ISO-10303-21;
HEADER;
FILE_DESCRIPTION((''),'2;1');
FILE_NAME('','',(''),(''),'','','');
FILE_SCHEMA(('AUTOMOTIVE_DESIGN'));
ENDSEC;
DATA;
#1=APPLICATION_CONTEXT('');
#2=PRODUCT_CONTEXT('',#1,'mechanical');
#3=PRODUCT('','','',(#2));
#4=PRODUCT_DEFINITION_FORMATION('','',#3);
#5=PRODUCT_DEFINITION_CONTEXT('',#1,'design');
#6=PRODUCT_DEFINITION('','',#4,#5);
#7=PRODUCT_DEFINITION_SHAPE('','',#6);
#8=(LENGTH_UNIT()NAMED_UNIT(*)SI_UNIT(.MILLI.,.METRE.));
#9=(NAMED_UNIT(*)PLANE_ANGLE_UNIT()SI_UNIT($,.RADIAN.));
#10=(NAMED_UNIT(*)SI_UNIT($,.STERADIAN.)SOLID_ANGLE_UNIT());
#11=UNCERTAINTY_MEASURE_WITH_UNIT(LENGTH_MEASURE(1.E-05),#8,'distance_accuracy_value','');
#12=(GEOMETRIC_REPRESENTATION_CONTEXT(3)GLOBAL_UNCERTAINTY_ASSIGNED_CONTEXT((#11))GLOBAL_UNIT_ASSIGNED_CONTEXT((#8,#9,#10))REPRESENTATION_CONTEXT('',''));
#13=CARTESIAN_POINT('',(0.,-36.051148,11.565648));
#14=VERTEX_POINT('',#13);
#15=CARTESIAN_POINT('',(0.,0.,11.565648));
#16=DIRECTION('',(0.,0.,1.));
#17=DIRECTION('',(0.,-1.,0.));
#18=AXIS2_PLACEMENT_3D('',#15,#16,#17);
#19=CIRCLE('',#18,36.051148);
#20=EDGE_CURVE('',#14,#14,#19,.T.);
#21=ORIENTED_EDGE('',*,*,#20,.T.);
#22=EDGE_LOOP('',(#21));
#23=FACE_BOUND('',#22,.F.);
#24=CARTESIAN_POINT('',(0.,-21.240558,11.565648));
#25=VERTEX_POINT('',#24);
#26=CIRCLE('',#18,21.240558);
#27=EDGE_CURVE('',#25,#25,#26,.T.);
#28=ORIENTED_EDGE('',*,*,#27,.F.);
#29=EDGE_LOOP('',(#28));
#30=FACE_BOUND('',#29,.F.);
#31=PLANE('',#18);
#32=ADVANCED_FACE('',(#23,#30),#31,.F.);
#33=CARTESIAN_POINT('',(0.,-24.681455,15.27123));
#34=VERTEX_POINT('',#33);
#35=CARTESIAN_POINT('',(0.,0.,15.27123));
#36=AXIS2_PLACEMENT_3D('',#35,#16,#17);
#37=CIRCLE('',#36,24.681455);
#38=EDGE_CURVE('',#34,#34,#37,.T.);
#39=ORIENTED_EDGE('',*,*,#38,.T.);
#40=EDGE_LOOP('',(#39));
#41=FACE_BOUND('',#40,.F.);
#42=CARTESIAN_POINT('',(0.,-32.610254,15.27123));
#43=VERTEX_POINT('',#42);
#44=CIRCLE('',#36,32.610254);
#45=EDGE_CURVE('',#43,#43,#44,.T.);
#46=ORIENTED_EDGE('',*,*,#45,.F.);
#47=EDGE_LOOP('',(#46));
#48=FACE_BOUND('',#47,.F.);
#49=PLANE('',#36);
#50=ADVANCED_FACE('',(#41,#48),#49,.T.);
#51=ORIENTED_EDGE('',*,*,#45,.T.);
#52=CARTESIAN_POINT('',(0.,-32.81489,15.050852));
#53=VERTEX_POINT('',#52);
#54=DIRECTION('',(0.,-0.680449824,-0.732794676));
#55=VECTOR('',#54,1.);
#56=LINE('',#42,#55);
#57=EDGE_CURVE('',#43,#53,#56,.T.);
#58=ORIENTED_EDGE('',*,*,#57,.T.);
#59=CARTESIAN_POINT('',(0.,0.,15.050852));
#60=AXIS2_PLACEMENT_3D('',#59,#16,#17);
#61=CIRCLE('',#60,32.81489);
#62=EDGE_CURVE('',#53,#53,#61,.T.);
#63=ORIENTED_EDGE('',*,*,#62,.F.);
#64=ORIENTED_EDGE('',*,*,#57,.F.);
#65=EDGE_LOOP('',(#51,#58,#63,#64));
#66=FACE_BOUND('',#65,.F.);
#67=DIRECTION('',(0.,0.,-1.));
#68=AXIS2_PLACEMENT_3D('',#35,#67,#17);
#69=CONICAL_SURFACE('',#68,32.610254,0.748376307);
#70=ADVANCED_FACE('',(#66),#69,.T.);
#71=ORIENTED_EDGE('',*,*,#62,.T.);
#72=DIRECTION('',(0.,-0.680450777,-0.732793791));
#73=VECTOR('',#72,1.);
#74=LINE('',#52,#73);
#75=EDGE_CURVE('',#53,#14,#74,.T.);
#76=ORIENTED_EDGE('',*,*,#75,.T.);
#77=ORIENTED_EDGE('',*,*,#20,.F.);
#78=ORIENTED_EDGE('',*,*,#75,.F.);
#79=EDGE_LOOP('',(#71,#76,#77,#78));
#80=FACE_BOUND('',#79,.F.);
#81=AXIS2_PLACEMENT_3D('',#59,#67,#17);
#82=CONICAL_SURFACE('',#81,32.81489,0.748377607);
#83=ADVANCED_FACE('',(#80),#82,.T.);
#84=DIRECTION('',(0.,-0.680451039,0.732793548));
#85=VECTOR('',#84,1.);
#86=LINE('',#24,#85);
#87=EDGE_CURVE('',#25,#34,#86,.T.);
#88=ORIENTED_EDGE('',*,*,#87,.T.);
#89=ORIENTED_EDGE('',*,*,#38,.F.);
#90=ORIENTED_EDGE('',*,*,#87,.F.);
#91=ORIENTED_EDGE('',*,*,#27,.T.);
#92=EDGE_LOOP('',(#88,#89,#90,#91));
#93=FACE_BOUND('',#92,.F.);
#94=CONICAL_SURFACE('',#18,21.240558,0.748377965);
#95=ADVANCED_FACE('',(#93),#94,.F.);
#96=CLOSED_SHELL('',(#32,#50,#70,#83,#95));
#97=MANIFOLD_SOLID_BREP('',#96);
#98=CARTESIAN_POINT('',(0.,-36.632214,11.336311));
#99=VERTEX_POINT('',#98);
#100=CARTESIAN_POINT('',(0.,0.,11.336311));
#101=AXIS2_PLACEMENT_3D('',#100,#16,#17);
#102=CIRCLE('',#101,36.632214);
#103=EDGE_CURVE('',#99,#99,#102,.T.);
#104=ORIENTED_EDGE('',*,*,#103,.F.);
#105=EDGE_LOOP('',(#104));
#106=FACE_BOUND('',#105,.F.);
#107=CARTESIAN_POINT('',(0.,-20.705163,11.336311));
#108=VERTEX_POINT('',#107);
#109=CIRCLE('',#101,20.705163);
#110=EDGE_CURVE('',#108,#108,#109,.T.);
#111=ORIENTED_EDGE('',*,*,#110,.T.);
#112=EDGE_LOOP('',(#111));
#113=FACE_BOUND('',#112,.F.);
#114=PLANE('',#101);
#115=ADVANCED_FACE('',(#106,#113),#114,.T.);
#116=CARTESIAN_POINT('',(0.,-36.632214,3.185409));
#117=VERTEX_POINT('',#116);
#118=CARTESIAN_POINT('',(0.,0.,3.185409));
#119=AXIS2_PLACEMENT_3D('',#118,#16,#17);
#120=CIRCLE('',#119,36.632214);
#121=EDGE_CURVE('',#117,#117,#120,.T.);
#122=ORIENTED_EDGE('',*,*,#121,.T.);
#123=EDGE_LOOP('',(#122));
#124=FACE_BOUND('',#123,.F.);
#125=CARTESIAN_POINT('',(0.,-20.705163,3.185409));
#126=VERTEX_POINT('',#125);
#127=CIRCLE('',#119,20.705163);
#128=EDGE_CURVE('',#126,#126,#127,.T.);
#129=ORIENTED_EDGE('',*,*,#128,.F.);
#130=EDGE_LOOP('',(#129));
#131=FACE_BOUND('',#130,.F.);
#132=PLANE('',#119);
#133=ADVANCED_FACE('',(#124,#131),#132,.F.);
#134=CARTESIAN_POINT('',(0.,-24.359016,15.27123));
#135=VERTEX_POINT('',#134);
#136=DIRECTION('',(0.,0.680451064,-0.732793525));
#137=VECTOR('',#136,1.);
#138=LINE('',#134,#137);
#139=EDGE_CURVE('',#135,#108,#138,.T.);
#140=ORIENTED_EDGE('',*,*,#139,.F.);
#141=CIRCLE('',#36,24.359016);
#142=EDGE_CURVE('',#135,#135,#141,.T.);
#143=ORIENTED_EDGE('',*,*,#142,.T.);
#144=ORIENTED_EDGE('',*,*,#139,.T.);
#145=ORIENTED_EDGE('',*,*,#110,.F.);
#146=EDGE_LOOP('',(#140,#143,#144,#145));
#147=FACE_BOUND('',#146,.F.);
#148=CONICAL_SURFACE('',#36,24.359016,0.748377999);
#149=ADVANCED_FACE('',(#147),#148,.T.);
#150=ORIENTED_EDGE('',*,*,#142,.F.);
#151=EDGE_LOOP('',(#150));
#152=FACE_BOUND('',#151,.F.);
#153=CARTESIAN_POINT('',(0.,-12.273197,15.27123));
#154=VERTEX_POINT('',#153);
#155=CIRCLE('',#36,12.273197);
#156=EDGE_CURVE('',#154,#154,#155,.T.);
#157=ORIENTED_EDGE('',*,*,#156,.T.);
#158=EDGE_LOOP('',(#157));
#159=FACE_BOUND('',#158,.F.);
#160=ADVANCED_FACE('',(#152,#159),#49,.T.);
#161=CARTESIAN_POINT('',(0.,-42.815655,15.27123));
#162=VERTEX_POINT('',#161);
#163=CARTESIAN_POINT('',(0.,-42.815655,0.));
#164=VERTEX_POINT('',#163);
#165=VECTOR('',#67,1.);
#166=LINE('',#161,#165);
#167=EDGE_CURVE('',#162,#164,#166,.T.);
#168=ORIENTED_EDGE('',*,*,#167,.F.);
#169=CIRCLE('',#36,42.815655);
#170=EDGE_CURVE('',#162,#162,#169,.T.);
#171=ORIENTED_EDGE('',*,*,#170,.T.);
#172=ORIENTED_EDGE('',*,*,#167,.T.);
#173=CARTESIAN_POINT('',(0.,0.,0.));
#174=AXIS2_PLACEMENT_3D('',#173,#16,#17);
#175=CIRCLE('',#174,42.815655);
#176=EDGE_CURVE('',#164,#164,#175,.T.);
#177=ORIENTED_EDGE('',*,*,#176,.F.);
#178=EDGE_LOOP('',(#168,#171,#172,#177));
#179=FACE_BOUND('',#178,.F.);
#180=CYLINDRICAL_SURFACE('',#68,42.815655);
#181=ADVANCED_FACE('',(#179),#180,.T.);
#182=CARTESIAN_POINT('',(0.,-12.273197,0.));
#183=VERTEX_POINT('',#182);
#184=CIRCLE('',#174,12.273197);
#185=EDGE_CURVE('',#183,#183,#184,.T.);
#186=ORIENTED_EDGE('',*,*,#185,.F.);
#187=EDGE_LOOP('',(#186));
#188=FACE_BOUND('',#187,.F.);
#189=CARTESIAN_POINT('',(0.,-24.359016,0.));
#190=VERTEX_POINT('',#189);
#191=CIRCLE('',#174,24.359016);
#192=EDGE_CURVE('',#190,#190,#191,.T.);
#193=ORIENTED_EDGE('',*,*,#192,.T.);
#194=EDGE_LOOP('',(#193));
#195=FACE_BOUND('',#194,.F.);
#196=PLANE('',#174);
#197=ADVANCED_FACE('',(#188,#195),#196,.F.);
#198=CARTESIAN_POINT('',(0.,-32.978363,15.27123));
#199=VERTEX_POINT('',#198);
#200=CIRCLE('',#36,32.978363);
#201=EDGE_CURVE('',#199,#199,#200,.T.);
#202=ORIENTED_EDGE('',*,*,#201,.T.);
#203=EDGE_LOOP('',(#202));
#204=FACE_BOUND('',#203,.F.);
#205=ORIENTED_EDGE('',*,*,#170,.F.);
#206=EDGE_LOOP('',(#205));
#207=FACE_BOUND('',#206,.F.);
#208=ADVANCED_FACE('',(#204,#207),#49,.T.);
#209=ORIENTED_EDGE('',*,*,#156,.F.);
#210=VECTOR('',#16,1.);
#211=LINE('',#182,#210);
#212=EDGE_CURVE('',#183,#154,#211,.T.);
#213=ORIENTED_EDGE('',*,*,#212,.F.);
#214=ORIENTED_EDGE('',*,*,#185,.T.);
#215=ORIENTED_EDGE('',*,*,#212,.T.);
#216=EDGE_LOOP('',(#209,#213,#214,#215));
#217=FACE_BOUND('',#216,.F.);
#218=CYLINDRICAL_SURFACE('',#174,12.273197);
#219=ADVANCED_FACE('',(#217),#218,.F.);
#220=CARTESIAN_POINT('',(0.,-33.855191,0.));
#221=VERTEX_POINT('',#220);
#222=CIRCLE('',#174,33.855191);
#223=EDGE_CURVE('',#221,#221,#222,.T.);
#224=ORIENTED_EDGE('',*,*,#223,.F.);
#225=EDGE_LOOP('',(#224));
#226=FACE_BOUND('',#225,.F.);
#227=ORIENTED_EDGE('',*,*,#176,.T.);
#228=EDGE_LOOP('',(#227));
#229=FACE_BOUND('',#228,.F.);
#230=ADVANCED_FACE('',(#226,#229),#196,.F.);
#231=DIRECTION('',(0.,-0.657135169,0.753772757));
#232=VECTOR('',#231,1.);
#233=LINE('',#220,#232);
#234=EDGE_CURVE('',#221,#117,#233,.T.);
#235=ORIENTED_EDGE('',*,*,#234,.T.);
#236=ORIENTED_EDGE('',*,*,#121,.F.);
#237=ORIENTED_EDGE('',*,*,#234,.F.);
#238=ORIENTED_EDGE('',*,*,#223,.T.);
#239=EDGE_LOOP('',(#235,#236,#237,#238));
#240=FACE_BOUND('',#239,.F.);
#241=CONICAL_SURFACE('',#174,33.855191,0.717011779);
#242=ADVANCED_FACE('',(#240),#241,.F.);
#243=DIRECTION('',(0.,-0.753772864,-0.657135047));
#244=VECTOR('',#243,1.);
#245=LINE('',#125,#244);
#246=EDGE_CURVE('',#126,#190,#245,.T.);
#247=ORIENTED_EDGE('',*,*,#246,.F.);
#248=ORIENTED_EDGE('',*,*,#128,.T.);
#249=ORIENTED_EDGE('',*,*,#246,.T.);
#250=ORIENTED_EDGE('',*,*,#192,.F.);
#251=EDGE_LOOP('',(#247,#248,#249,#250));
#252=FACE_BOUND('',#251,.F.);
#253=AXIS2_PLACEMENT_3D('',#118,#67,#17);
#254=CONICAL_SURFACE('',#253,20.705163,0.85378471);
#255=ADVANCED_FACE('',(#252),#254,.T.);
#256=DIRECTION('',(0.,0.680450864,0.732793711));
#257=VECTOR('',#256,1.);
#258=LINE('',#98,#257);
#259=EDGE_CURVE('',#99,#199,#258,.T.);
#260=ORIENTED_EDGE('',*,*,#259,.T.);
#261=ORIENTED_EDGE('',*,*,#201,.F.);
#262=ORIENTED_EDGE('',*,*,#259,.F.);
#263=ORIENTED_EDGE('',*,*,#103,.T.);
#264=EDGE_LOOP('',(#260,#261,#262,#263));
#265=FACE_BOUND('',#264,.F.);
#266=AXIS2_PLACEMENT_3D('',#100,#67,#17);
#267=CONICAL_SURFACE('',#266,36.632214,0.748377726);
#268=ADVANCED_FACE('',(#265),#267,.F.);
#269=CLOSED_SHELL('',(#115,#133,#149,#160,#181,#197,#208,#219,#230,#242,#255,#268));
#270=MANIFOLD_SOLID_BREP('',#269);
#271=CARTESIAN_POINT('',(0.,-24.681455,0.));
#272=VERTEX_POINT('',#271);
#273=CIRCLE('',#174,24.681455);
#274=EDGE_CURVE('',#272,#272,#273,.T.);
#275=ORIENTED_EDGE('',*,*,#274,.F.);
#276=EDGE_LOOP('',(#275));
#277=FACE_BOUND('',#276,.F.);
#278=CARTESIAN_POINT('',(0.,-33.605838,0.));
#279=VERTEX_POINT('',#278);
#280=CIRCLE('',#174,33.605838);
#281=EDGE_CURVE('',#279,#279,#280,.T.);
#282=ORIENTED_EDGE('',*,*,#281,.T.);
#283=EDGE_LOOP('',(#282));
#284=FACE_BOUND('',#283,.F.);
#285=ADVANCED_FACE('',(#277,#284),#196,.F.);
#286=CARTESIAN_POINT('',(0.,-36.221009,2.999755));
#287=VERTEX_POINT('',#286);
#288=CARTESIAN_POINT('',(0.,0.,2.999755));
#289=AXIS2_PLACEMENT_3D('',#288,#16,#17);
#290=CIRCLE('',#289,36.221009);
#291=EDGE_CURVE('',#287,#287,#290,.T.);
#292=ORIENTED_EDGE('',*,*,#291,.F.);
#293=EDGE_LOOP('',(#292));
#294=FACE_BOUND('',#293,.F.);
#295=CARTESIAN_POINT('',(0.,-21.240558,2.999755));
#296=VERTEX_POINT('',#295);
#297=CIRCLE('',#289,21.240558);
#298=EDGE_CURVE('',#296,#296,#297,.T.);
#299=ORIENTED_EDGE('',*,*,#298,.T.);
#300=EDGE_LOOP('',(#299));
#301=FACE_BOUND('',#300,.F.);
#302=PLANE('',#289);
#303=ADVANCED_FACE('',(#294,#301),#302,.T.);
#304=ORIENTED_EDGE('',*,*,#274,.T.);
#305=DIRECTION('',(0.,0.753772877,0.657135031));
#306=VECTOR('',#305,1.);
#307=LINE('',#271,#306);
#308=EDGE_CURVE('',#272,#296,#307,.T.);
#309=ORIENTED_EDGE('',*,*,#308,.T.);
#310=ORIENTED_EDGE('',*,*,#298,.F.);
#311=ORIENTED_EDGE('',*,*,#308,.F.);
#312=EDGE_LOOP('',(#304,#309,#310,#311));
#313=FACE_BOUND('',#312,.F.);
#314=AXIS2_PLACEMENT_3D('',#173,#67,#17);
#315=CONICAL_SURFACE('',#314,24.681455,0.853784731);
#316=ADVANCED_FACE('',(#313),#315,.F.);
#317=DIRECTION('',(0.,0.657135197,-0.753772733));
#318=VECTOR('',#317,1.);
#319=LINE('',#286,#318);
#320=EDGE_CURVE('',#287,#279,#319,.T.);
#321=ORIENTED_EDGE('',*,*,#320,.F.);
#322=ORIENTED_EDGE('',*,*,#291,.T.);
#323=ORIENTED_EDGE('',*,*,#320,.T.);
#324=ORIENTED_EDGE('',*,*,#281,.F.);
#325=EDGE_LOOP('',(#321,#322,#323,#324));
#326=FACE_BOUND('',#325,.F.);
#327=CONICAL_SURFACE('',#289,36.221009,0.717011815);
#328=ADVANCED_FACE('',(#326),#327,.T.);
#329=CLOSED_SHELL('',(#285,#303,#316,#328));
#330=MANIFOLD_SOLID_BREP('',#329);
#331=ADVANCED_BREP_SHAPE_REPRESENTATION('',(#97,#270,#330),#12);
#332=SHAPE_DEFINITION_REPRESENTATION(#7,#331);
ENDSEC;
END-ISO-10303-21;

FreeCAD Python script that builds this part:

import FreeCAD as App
import Part
import Sketcher
Q = App.Units.Quantity

doc = App.newDocument("Part")
body = doc.addObject("PartDesign::Body", "Body")
body.AllowCompound = True

# Sketch on YZ plane
sketch1 = body.newObject("Sketcher::SketchObject", "Sketch")
sketch1.AttachmentSupport = (doc.getObject("YZ_Plane"), [""])
sketch1.MapMode = "FlatFace"
sketch1.addGeometry([
    Part.LineSegment(App.Vector(-42.82, 15.27, 0), App.Vector(-42.82, 0, 0)),  # 0
    Part.LineSegment(App.Vector(-42.82, 0, 0), App.Vector(-33.86, 0, 0)),  # 1
    Part.LineSegment(App.Vector(-33.86, 0, 0), App.Vector(-36.63, 3.19, 0)),  # 2
    Part.LineSegment(App.Vector(-36.63, 3.19, 0), App.Vector(-20.71, 3.19, 0)),  # 3
    Part.LineSegment(App.Vector(-20.71, 3.19, 0), App.Vector(-24.36, 0, 0)),  # 4
    Part.LineSegment(App.Vector(-24.36, 0, 0), App.Vector(-12.27, 0, 0)),  # 5
    Part.LineSegment(App.Vector(-12.27, 0, 0), App.Vector(-12.27, 15.27, 0)),  # 6
    Part.LineSegment(App.Vector(-12.27, 15.27, 0), App.Vector(-24.36, 15.27, 0)),  # 7
    Part.LineSegment(App.Vector(-24.36, 15.27, 0), App.Vector(-20.71, 11.34, 0)),  # 8
    Part.LineSegment(App.Vector(-20.71, 11.34, 0), App.Vector(-36.63, 11.34, 0)),  # 9
    Part.LineSegment(App.Vector(-36.63, 11.34, 0), App.Vector(-32.98, 15.27, 0)),  # 10
    Part.LineSegment(App.Vector(-32.98, 15.27, 0), App.Vector(-42.82, 15.27, 0)),  # 11
    Part.LineSegment(App.Vector(-32.61, 15.27, 0), App.Vector(-32.81, 15.05, 0)),  # 12
    Part.LineSegment(App.Vector(-32.81, 15.05, 0), App.Vector(-36.05, 11.57, 0)),  # 13
    Part.LineSegment(App.Vector(-36.05, 11.57, 0), App.Vector(-21.24, 11.57, 0)),  # 14
    Part.LineSegment(App.Vector(-21.24, 11.57, 0), App.Vector(-24.68, 15.27, 0)),  # 15
    Part.LineSegment(App.Vector(-24.68, 15.27, 0), App.Vector(-32.61, 15.27, 0)),  # 16
    Part.LineSegment(App.Vector(-33.61, 0, 0), App.Vector(-24.68, 0, 0)),  # 17
    Part.LineSegment(App.Vector(-24.68, 0, 0), App.Vector(-21.24, 3, 0)),  # 18
    Part.LineSegment(App.Vector(-21.24, 3, 0), App.Vector(-36.22, 3, 0)),  # 19
    Part.LineSegment(App.Vector(-36.22, 3, 0), App.Vector(-33.61, 0, 0)),  # 20
], False)
sketch1.addConstraint([
    Sketcher.Constraint("Coincident", 0, 2, 1, 1),
    Sketcher.Constraint("Coincident", 1, 2, 2, 1),
    Sketcher.Constraint("Coincident", 2, 2, 3, 1),
    Sketcher.Constraint("Coincident", 3, 2, 4, 1),
    Sketcher.Constraint("Coincident", 4, 2, 5, 1),
    Sketcher.Constraint("Coincident", 5, 2, 6, 1),
    Sketcher.Constraint("Coincident", 6, 2, 7, 1),
    Sketcher.Constraint("Coincident", 7, 2, 8, 1),
    Sketcher.Constraint("Coincident", 8, 2, 9, 1),
    Sketcher.Constraint("Coincident", 9, 2, 10, 1),
    Sketcher.Constraint("Coincident", 10, 2, 11, 1),
    Sketcher.Constraint("Coincident", 11, 2, 0, 1),
    Sketcher.Constraint("Coincident", 12, 2, 13, 1),
    Sketcher.Constraint("Coincident", 13, 2, 14, 1),
    Sketcher.Constraint("Coincident", 14, 2, 15, 1),
    Sketcher.Constraint("Coincident", 15, 2, 16, 1),
    Sketcher.Constraint("Coincident", 16, 2, 12, 1),
    Sketcher.Constraint("Coincident", 17, 2, 18, 1),
    Sketcher.Constraint("Coincident", 18, 2, 19, 1),
    Sketcher.Constraint("Coincident", 19, 2, 20, 1),
    Sketcher.Constraint("Coincident", 20, 2, 17, 1),
    Sketcher.Constraint("Vertical", 0),
    Sketcher.Constraint("Horizontal", 1),
    Sketcher.Constraint("Horizontal", 3),
    Sketcher.Constraint("Horizontal", 5),
    Sketcher.Constraint("Vertical", 6),
    Sketcher.Constraint("Horizontal", 7),
    Sketcher.Constraint("Horizontal", 9),
    Sketcher.Constraint("Horizontal", 11),
    Sketcher.Constraint("Horizontal", 14),
    Sketcher.Constraint("Horizontal", 16),
    Sketcher.Constraint("Horizontal", 17),
    Sketcher.Constraint("Horizontal", 19),
    Sketcher.Constraint("PointOnObject", 0, 2, -1),
    Sketcher.Constraint("PointOnObject", 4, 2, -1),
    Sketcher.Constraint("PointOnObject", 17, 2, -1),
    Sketcher.Constraint("Perpendicular", 2, 4),
    Sketcher.Constraint("Parallel", 10, 12),
    Sketcher.Constraint("Parallel", 12, 13),
    Sketcher.Constraint("Parallel", 8, 15),
    Sketcher.Constraint("Parallel", 4, 18),
    Sketcher.Constraint("Perpendicular", 18, 20),
    Sketcher.Constraint("Horizontal", 7, 2, 10, 2),
    Sketcher.Constraint("Horizontal", 11, 2, 15, 2),
    Sketcher.Constraint("Vertical", 4, 2, 7, 2),
    Sketcher.Constraint("Vertical", 3, 2, 8, 2),
    Sketcher.Constraint("Vertical", 2, 2, 9, 2),
    Sketcher.Constraint("Vertical", 15, 2, 17, 2),
    Sketcher.Constraint("Vertical", 14, 2, 18, 2),
    Sketcher.Constraint("Equal", 8, 10),
    Sketcher.Constraint("DistanceX", 16, 2, 16, 1, Q("7.928799 mm")),
    Sketcher.Constraint("Distance", 18, Q("4.564899 mm")),
    Sketcher.Constraint("DistanceX", 3, 1, 3, 2, Q("15.927051 mm")),
    Sketcher.Constraint("DistanceX", 5, 1, 5, 2, Q("12.085819 mm")),
    Sketcher.Constraint("DistanceX", 11, 2, 11, 1, Q("9.837292 mm")),
    Sketcher.Constraint("DistanceX", 14, 1, 14, 2, Q("14.81059 mm")),
    Sketcher.Constraint("DistanceX", 19, 2, 19, 1, Q("14.980451 mm")),
    Sketcher.Constraint("DistanceY", 0, 2, 0, 1, Q("15.27123 mm")),
    Sketcher.Constraint("DistanceX", 10, 2, 8, 2, Q("12.2732 mm")),
    Sketcher.Constraint("Distance", 8, Q("5.369751 mm")),
    Sketcher.Constraint("Distance", 13, Q("4.75605 mm")),
    Sketcher.Constraint("DistanceX", 1, 2, -1, 1, Q("33.855191 mm")),
    Sketcher.Constraint("DistanceX", 12, 2, -1, 1, Q("32.81489 mm")),
])
revolution = body.newObject("PartDesign::Revolution", "Revolution")
revolution.Profile = sketch1
revolution.ReferenceAxis = (sketch1, ["V_Axis"])
revolution.Angle = 360

doc.recompute()
